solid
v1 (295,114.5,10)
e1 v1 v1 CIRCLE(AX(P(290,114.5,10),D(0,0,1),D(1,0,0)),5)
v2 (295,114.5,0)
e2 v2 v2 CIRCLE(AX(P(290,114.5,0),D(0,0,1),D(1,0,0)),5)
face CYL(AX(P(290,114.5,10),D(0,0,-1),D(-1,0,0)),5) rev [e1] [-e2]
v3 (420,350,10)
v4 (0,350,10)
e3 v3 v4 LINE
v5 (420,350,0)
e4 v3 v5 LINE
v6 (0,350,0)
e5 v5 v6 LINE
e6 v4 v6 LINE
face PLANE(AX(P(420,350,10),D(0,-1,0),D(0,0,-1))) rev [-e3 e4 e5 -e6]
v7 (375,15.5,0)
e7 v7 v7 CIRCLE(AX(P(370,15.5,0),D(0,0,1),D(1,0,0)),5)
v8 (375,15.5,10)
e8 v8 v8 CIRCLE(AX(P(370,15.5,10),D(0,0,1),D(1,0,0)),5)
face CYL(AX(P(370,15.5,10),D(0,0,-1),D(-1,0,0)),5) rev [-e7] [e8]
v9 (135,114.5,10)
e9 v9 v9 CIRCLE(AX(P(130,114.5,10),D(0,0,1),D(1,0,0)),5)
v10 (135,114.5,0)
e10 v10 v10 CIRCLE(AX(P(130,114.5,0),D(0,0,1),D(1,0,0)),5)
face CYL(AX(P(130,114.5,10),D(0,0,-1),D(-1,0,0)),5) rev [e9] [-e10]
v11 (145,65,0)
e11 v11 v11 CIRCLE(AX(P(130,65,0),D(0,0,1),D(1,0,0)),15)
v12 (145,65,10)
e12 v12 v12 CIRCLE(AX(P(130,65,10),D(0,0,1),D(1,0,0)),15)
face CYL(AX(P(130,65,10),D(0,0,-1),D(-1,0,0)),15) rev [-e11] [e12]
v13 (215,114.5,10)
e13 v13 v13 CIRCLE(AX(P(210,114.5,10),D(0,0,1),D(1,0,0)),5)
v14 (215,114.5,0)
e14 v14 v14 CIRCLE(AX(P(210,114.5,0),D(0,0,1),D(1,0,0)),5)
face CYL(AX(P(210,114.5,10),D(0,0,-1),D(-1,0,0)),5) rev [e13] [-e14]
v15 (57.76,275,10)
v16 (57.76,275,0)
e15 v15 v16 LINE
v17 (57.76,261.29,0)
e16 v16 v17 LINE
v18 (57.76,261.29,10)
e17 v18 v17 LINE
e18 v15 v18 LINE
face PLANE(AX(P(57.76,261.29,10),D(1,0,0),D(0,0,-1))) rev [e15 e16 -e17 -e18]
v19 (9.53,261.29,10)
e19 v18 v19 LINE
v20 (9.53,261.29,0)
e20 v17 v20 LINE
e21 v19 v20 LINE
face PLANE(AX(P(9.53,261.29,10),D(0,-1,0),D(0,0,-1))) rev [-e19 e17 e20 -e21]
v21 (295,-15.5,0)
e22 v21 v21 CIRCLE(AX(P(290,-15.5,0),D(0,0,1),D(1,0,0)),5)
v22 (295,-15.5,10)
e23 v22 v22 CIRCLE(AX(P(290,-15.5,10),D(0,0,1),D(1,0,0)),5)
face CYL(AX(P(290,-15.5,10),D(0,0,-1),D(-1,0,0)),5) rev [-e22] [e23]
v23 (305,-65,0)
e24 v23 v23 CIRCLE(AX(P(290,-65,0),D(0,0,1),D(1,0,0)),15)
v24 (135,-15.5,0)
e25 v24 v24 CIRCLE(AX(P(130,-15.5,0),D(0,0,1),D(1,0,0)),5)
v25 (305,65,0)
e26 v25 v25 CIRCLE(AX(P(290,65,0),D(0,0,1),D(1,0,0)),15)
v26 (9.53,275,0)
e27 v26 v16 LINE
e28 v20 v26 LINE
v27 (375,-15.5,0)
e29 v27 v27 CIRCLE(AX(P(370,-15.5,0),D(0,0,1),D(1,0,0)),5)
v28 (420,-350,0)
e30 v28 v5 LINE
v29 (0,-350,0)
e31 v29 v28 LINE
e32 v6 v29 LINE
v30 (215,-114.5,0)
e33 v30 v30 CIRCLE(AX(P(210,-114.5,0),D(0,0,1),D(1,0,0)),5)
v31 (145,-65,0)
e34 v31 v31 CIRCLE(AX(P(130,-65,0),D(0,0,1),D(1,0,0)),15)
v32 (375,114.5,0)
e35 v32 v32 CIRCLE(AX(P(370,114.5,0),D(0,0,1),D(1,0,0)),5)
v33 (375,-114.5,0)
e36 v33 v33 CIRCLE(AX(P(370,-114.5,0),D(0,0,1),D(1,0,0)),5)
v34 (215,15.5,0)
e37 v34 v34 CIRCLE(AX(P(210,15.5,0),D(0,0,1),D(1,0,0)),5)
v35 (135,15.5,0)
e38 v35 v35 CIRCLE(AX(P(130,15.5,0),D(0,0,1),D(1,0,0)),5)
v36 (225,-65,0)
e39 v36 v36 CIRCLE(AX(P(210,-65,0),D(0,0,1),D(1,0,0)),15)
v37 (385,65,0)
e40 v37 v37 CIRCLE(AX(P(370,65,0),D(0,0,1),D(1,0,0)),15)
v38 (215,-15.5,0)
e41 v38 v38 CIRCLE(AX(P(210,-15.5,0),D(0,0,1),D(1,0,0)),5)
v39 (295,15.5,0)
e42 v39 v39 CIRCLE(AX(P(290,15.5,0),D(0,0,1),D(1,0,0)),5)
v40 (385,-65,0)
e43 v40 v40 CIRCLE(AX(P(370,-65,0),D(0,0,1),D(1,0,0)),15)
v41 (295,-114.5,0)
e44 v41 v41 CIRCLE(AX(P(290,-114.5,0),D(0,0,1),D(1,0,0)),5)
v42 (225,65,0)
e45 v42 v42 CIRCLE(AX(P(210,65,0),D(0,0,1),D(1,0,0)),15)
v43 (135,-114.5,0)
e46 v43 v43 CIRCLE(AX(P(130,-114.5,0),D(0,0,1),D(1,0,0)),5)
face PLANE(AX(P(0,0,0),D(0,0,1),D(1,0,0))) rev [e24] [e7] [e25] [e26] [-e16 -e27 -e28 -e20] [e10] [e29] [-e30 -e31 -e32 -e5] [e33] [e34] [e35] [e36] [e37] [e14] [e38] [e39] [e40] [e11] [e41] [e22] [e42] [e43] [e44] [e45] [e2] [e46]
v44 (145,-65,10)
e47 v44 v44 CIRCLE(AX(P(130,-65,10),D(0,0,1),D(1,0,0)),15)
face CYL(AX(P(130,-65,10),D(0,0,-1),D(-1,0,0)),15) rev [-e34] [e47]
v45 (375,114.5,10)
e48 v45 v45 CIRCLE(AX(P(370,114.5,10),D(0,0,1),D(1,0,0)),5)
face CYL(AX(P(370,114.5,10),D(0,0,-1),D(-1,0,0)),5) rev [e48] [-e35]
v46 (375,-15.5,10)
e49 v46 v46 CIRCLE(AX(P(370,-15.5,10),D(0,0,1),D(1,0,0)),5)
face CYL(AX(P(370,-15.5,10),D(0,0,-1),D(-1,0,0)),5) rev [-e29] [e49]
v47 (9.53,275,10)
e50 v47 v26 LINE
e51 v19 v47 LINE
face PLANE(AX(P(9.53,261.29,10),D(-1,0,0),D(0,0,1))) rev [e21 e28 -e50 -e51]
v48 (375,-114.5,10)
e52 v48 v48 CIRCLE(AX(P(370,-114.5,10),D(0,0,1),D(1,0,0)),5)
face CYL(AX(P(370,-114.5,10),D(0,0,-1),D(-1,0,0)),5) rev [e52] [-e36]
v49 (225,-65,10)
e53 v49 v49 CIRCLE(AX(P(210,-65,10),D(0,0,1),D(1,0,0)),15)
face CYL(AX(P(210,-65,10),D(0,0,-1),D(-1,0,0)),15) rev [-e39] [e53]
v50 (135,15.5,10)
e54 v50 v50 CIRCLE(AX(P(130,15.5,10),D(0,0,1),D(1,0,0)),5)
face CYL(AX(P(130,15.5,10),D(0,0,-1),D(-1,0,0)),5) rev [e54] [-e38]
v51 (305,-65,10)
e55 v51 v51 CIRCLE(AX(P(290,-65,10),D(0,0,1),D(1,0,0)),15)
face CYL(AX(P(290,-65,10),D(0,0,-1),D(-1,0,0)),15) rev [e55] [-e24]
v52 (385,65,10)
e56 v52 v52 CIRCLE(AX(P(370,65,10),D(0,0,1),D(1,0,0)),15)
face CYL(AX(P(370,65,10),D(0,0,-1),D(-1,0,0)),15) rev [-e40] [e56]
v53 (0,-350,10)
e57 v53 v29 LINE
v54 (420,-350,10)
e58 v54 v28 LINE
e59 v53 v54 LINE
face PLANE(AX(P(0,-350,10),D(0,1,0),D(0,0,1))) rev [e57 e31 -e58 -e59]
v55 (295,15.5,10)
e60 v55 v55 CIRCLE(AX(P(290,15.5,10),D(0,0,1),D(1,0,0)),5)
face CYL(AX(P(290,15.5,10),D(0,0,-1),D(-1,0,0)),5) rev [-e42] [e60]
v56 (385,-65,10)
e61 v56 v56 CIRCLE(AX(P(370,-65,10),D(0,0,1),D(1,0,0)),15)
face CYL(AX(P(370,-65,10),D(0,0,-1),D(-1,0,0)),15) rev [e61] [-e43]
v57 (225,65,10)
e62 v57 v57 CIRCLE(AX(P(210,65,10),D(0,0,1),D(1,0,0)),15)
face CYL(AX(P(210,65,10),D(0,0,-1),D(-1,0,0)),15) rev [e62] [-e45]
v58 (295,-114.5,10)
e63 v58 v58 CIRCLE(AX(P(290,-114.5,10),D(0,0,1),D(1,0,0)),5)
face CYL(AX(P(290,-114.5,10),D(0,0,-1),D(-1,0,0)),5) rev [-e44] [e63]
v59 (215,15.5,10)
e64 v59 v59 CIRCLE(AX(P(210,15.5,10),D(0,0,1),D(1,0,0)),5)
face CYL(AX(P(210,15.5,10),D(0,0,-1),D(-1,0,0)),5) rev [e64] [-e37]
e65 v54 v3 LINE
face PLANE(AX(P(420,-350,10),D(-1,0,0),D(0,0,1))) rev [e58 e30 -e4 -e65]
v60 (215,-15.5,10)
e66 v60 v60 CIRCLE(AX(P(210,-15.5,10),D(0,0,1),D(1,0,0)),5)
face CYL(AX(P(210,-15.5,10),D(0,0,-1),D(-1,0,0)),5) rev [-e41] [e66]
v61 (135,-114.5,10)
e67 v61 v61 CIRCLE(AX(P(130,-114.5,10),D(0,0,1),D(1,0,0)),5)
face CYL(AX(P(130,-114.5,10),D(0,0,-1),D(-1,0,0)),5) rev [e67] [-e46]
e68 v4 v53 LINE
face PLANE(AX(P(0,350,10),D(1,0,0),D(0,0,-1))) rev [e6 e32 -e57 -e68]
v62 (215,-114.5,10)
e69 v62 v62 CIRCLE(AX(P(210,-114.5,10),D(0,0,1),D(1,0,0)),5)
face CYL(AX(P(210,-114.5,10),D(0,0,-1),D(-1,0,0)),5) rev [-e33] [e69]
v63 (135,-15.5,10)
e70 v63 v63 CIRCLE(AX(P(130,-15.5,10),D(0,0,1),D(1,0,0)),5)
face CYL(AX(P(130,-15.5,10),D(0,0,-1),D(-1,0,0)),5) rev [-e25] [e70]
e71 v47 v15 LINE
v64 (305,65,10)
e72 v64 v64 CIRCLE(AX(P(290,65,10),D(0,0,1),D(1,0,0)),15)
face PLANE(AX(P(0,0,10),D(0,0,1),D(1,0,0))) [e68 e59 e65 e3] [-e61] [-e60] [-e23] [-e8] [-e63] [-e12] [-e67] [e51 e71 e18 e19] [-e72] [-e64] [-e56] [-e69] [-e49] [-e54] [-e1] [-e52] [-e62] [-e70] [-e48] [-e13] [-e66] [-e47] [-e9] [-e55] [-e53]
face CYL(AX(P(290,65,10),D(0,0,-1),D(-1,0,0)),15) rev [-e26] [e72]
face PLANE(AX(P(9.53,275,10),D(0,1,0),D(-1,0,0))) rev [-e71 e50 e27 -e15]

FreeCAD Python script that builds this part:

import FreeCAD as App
import Part
import Sketcher

V = App.Vector
Q = App.Units.Quantity


def add_polygon(sketch, points):
    """Adds a closed chain of lines whose ends are joined by coincident constraints."""
    first, n = sketch.GeometryCount, len(points)
    for a, b in zip(points, points[1:] + points[:1]):
        sketch.addGeometry(Part.LineSegment(App.Vector(*a, 0), App.Vector(*b, 0)), False)
    for i in range(n):
        sketch.addConstraint(Sketcher.Constraint("Coincident", first + i, 2, first + (i + 1) % n, 1))

doc = App.newDocument("Part")
body = doc.addObject("PartDesign::Body", "Body")

# Sketch on XY plane
sketch1 = body.newObject("Sketcher::SketchObject", "Sketch")
sketch1.AttachmentSupport = (doc.getObject("XY_Plane"), [""])
sketch1.MapMode = "FlatFace"
add_polygon(sketch1, [(0, 350), (0, -350), (420, -350), (420, 350)])  # lines 0-3
sketch1.addGeometry(Part.Circle(V(130, -114.5, 0), V(0, 0, 1), 5), False)  # 4
sketch1.addGeometry(Part.Circle(V(130, -65, 0), V(0, 0, 1), 15), False)  # 5
sketch1.addGeometry(Part.Circle(V(210, -114.5, 0), V(0, 0, 1), 5), False)  # 6
sketch1.addGeometry(Part.Circle(V(210, -65, 0), V(0, 0, 1), 15), False)  # 7
sketch1.addGeometry(Part.Circle(V(130, -15.5, 0), V(0, 0, 1), 5), False)  # 8
sketch1.addGeometry(Part.Circle(V(210, -15.5, 0), V(0, 0, 1), 5), False)  # 9
sketch1.addGeometry(Part.Circle(V(290, -114.5, 0), V(0, 0, 1), 5), False)  # 10
sketch1.addGeometry(Part.Circle(V(290, -65, 0), V(0, 0, 1), 15), False)  # 11
sketch1.addGeometry(Part.Circle(V(370, -114.5, 0), V(0, 0, 1), 5), False)  # 12
sketch1.addGeometry(Part.Circle(V(370, -65, 0), V(0, 0, 1), 15), False)  # 13
sketch1.addGeometry(Part.Circle(V(290, -15.5, 0), V(0, 0, 1), 5), False)  # 14
sketch1.addGeometry(Part.Circle(V(370, -15.5, 0), V(0, 0, 1), 5), False)  # 15
sketch1.addGeometry(Part.Circle(V(130, 15.5, 0), V(0, 0, 1), 5), False)  # 16
sketch1.addGeometry(Part.Circle(V(210, 15.5, 0), V(0, 0, 1), 5), False)  # 17
sketch1.addGeometry(Part.Circle(V(130, 65, 0), V(0, 0, 1), 15), False)  # 18
sketch1.addGeometry(Part.Circle(V(130, 114.5, 0), V(0, 0, 1), 5), False)  # 19
sketch1.addGeometry(Part.Circle(V(210, 65, 0), V(0, 0, 1), 15), False)  # 20
sketch1.addGeometry(Part.Circle(V(210, 114.5, 0), V(0, 0, 1), 5), False)  # 21
sketch1.addGeometry(Part.Circle(V(290, 15.5, 0), V(0, 0, 1), 5), False)  # 22
sketch1.addGeometry(Part.Circle(V(370, 15.5, 0), V(0, 0, 1), 5), False)  # 23
sketch1.addGeometry(Part.Circle(V(290, 65, 0), V(0, 0, 1), 15), False)  # 24
sketch1.addGeometry(Part.Circle(V(290, 114.5, 0), V(0, 0, 1), 5), False)  # 25
sketch1.addGeometry(Part.Circle(V(370, 65, 0), V(0, 0, 1), 15), False)  # 26
sketch1.addGeometry(Part.Circle(V(370, 114.5, 0), V(0, 0, 1), 5), False)  # 27
sketch1.addConstraint(Sketcher.Constraint("Vertical", 0))
sketch1.addConstraint(Sketcher.Constraint("Horizontal", 1))
sketch1.addConstraint(Sketcher.Constraint("Vertical", 2))
sketch1.addConstraint(Sketcher.Constraint("Horizontal", 3))
sketch1.addConstraint(Sketcher.Constraint("Equal", 4, 6))
sketch1.addConstraint(Sketcher.Constraint("Equal", 5, 7))
sketch1.addConstraint(Sketcher.Constraint("Equal", 6, 8))
sketch1.addConstraint(Sketcher.Constraint("Equal", 8, 9))
sketch1.addConstraint(Sketcher.Constraint("Equal", 9, 10))
sketch1.addConstraint(Sketcher.Constraint("Equal", 7, 11))
sketch1.addConstraint(Sketcher.Constraint("Equal", 10, 12))
sketch1.addConstraint(Sketcher.Constraint("Equal", 11, 13))
sketch1.addConstraint(Sketcher.Constraint("Equal", 12, 14))
sketch1.addConstraint(Sketcher.Constraint("Equal", 14, 15))
sketch1.addConstraint(Sketcher.Constraint("Equal", 15, 16))
sketch1.addConstraint(Sketcher.Constraint("Equal", 16, 17))
sketch1.addConstraint(Sketcher.Constraint("Equal", 13, 18))
sketch1.addConstraint(Sketcher.Constraint("Equal", 17, 19))
sketch1.addConstraint(Sketcher.Constraint("Equal", 18, 20))
sketch1.addConstraint(Sketcher.Constraint("Equal", 19, 21))
sketch1.addConstraint(Sketcher.Constraint("Equal", 21, 22))
sketch1.addConstraint(Sketcher.Constraint("Equal", 22, 23))
sketch1.addConstraint(Sketcher.Constraint("Equal", 20, 24))
sketch1.addConstraint(Sketcher.Constraint("Equal", 23, 25))
sketch1.addConstraint(Sketcher.Constraint("Equal", 24, 26))
sketch1.addConstraint(Sketcher.Constraint("Equal", 25, 27))
sketch1.addConstraint(Sketcher.Constraint("Symmetric", 0, 2, 3, 2, -1, 1))
sketch1.addConstraint(Sketcher.Constraint("Symmetric", 8, 3, 16, 3, -1))
sketch1.addConstraint(Sketcher.Constraint("Symmetric", 9, 3, 17, 3, -1))
sketch1.addConstraint(Sketcher.Constraint("Symmetric", 5, 3, 18, 3, -1))
sketch1.addConstraint(Sketcher.Constraint("Symmetric", 4, 3, 19, 3, -1))
sketch1.addConstraint(Sketcher.Constraint("Symmetric", 7, 3, 20, 3, -1))
sketch1.addConstraint(Sketcher.Constraint("Symmetric", 6, 3, 21, 3, -1))
sketch1.addConstraint(Sketcher.Constraint("Symmetric", 14, 3, 22, 3, -1))
sketch1.addConstraint(Sketcher.Constraint("Symmetric", 15, 3, 23, 3, -1))
sketch1.addConstraint(Sketcher.Constraint("Symmetric", 11, 3, 24, 3, -1))
sketch1.addConstraint(Sketcher.Constraint("Symmetric", 10, 3, 25, 3, -1))
sketch1.addConstraint(Sketcher.Constraint("Symmetric", 13, 3, 26, 3, -1))
sketch1.addConstraint(Sketcher.Constraint("Symmetric", 12, 3, 27, 3, -1))
sketch1.addConstraint(Sketcher.Constraint("Horizontal", 4, 3, 6, 3))
sketch1.addConstraint(Sketcher.Constraint("Horizontal", 5, 3, 7, 3))
sketch1.addConstraint(Sketcher.Constraint("Horizontal", 8, 3, 9, 3))
sketch1.addConstraint(Sketcher.Constraint("Horizontal", 6, 3, 10, 3))
sketch1.addConstraint(Sketcher.Constraint("Horizontal", 7, 3, 11, 3))
sketch1.addConstraint(Sketcher.Constraint("Horizontal", 10, 3, 12, 3))
sketch1.addConstraint(Sketcher.Constraint("Horizontal", 11, 3, 13, 3))
sketch1.addConstraint(Sketcher.Constraint("Horizontal", 9, 3, 14, 3))
sketch1.addConstraint(Sketcher.Constraint("Horizontal", 14, 3, 15, 3))
sketch1.addConstraint(Sketcher.Constraint("Vertical", 4, 3, 5, 3))
sketch1.addConstraint(Sketcher.Constraint("Vertical", 6, 3, 7, 3))
sketch1.addConstraint(Sketcher.Constraint("Vertical", 5, 3, 8, 3))
sketch1.addConstraint(Sketcher.Constraint("Vertical", 7, 3, 9, 3))
sketch1.addConstraint(Sketcher.Constraint("Vertical", 10, 3, 11, 3))
sketch1.addConstraint(Sketcher.Constraint("Vertical", 12, 3, 13, 3))
sketch1.addConstraint(Sketcher.Constraint("Vertical", 11, 3, 14, 3))
sketch1.addConstraint(Sketcher.Constraint("Vertical", 13, 3, 15, 3))
sketch1.addConstraint(Sketcher.Constraint("Diameter", 4, Q("10 mm")))
sketch1.addConstraint(Sketcher.Constraint("Diameter", 5, Q("30 mm")))
sketch1.addConstraint(Sketcher.Constraint("DistanceX", 1, 1, 1, 2, Q("420 mm")))
sketch1.addConstraint(Sketcher.Constraint("DistanceY", 0, 2, 0, 1, Q("700 mm")))
sketch1.addConstraint(Sketcher.Constraint("DistanceX", -1, 1, 4, 3, Q("130 mm")))
sketch1.addConstraint(Sketcher.Constraint("DistanceY", 5, 3, -1, 1, Q("65 mm")))
sketch1.addConstraint(Sketcher.Constraint("DistanceX", -1, 1, 6, 3, Q("210 mm")))
sketch1.addConstraint(Sketcher.Constraint("DistanceX", -1, 1, 10, 3, Q("290 mm")))
sketch1.addConstraint(Sketcher.Constraint("DistanceX", -1, 1, 12, 3, Q("370 mm")))
sketch1.addConstraint(Sketcher.Constraint("DistanceY", 4, 3, 8, 3, Q("99 mm")))
sketch1.addConstraint(Sketcher.Constraint("DistanceY", 8, 3, 16, 3, Q("31 mm")))
pad1 = body.newObject("PartDesign::Pad", "Pad")
pad1.Profile = sketch1
pad1.Length = 10

# Sketch on XY plane
sketch2 = body.newObject("Sketcher::SketchObject", "Sketch001")
sketch2.AttachmentSupport = (doc.getObject("XY_Plane"), [""])
sketch2.MapMode = "FlatFace"
add_polygon(sketch2, [(57.76, 275), (57.76, 261.29), (9.53, 261.29), (9.53, 275)])  # lines 0-3
sketch2.addConstraint(Sketcher.Constraint("Vertical", 0))
sketch2.addConstraint(Sketcher.Constraint("Horizontal", 1))
sketch2.addConstraint(Sketcher.Constraint("Vertical", 2))
sketch2.addConstraint(Sketcher.Constraint("Horizontal", 3))
sketch2.addConstraint(Sketcher.Constraint("DistanceY", -1, 1, 2, 2, Q("275 mm")))
sketch2.addConstraint(Sketcher.Constraint("DistanceX", 1, 2, 1, 1, Q("48.23 mm")))
sketch2.addConstraint(Sketcher.Constraint("DistanceY", 0, 2, 0, 1, Q("13.71 mm")))
sketch2.addConstraint(Sketcher.Constraint("DistanceX", -1, 1, 0, 2, Q("57.76 mm")))
pocket1 = body.newObject("PartDesign::Pocket", "Pocket")
pocket1.Profile = sketch2
pocket1.Length = 10
pocket1.Reversed = True

doc.recompute()
